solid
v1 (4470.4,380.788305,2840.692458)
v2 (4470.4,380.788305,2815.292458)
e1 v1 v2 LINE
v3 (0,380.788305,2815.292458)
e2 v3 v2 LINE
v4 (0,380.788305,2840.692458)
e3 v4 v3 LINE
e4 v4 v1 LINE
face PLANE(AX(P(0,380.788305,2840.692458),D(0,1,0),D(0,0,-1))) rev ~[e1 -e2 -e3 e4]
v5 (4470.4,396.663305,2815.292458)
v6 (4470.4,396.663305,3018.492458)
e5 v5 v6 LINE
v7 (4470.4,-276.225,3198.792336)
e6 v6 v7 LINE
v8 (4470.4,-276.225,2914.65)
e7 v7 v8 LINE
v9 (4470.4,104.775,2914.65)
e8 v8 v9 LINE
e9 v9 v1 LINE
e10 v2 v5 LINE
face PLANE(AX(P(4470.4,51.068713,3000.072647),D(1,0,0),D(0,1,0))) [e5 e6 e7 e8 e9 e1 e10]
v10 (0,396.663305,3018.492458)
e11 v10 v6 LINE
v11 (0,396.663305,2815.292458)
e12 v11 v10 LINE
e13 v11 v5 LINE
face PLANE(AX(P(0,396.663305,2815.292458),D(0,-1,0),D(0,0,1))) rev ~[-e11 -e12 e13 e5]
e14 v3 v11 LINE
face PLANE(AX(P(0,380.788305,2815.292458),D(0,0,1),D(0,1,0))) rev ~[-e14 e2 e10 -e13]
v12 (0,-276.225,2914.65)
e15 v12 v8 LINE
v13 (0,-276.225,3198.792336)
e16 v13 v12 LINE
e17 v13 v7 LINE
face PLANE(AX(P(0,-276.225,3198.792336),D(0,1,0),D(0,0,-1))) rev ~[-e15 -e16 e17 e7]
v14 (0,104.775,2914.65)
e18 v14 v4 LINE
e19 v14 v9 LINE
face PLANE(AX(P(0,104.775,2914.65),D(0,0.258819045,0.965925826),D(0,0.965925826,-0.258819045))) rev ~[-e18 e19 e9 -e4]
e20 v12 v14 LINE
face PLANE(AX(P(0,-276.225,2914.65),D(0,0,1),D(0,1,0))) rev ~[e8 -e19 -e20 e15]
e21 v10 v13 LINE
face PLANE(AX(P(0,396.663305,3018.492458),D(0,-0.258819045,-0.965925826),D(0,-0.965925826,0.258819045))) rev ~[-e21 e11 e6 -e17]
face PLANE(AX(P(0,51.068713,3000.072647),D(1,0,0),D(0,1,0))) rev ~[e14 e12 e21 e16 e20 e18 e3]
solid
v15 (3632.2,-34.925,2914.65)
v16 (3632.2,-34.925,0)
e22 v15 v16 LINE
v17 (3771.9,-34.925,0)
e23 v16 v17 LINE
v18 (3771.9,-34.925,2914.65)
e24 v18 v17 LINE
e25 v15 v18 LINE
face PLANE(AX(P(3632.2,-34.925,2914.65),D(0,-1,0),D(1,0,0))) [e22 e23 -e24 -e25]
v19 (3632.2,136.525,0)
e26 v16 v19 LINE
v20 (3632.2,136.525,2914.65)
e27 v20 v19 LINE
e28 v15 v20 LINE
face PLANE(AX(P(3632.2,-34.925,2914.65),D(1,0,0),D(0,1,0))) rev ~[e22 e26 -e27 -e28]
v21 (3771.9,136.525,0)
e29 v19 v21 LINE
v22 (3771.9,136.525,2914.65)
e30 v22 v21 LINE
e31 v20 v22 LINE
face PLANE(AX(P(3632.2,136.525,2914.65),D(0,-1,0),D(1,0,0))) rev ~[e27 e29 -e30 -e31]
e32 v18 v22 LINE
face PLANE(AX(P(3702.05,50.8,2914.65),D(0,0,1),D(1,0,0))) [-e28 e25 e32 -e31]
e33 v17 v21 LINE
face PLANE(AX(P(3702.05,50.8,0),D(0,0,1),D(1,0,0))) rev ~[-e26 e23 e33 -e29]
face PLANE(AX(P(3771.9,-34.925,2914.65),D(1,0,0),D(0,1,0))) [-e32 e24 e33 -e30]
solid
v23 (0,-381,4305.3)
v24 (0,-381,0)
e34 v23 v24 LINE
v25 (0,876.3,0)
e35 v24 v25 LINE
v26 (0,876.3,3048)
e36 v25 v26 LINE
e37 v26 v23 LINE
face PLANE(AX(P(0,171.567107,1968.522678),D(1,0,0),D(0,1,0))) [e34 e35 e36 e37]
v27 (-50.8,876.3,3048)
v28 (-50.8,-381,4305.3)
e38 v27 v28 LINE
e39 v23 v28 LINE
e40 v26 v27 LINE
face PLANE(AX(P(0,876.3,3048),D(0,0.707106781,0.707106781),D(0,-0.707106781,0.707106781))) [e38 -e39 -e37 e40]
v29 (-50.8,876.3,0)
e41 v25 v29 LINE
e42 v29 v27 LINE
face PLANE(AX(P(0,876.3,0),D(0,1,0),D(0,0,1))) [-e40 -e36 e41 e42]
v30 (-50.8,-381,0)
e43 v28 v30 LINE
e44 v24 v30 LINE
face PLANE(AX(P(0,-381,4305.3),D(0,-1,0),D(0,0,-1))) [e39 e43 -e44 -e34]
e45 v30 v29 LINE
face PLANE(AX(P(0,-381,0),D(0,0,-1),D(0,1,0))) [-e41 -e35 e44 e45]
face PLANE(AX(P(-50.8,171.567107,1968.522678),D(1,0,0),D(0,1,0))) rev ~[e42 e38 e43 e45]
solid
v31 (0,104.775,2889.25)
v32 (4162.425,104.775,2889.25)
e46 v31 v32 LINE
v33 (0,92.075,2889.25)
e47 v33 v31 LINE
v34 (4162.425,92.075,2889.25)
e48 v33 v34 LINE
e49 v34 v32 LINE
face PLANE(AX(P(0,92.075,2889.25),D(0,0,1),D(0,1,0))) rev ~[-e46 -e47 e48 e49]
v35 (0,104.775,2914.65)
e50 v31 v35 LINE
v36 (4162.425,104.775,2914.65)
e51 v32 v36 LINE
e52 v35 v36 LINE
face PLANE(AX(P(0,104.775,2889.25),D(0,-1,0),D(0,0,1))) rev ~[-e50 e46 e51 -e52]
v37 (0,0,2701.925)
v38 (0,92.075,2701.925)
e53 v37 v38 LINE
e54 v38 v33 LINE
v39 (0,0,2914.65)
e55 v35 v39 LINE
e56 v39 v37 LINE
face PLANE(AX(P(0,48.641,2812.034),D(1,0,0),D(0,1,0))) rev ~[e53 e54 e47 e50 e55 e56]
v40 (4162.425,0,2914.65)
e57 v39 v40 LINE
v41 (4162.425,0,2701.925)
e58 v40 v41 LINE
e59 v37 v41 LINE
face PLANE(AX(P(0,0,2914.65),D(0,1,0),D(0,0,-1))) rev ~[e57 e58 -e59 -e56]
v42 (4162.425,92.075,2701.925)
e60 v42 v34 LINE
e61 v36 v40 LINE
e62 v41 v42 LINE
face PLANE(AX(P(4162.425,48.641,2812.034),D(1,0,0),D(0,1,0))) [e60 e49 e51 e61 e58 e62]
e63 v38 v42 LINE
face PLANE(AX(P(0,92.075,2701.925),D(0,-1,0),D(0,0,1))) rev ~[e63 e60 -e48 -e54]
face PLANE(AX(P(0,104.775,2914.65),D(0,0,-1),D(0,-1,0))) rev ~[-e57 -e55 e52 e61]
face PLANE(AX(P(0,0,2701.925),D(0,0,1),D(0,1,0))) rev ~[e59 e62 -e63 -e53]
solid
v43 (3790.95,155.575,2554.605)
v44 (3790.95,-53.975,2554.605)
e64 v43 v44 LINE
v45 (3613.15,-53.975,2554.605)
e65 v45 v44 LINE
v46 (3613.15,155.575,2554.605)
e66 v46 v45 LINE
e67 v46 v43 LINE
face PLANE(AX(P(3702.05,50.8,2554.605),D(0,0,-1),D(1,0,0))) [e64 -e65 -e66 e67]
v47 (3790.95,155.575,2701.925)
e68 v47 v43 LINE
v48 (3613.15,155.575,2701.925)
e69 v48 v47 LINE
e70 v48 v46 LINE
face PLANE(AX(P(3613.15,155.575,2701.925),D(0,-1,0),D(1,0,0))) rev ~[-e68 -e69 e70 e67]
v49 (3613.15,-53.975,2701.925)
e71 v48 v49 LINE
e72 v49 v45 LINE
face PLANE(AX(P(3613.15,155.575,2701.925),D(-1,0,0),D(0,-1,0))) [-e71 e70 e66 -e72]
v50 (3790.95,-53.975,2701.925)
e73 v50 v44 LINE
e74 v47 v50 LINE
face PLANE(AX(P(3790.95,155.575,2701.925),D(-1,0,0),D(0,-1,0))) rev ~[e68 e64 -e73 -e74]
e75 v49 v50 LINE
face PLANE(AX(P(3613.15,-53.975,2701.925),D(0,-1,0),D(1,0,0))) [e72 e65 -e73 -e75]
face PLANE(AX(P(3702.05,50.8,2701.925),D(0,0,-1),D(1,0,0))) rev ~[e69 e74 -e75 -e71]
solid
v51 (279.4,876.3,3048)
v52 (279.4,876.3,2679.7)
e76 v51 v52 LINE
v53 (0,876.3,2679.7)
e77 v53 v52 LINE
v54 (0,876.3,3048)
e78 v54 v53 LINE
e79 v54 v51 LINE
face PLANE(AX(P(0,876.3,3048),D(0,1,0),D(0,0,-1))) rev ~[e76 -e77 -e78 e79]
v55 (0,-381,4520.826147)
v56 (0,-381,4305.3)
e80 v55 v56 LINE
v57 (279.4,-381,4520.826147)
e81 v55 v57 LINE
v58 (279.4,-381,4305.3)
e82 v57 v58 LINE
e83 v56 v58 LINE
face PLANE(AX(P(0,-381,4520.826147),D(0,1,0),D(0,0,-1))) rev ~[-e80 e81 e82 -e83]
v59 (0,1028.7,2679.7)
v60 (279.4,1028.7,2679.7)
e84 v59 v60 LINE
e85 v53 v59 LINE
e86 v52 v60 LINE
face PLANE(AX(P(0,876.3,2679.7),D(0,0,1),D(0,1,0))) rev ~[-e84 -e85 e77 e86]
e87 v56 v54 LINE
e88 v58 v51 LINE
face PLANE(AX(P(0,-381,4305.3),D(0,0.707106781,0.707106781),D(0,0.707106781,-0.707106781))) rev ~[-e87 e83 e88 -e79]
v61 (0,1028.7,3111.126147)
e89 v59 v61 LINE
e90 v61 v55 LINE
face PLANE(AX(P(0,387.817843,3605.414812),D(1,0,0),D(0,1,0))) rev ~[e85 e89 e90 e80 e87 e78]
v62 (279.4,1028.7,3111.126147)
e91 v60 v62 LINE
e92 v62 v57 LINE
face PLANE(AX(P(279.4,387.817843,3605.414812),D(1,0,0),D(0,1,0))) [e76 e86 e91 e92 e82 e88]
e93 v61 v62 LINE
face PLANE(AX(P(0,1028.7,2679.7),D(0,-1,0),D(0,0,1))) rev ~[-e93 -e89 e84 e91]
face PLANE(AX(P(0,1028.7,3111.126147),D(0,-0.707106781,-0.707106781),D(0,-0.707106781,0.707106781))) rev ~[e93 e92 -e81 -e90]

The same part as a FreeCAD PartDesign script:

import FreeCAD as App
import Part
import Sketcher
Q = App.Units.Quantity

doc = App.newDocument("Part")
body = doc.addObject("PartDesign::Body", "Body")

sketch1 = body.newObject("Sketcher::SketchObject", "Sketch")
sketch1.AttachmentSupport = (doc.getObject("YZ_Plane"), [""])
sketch1.MapMode = "FlatFace"
sketch1.addGeometry(Part.LineSegment(App.Vector(0, 2915, 0), App.Vector(0, 2702, 0)), False)
sketch1.addGeometry(Part.LineSegment(App.Vector(0, 2702, 0), App.Vector(92, 2702, 0)), False)
sketch1.addGeometry(Part.LineSegment(App.Vector(92, 2702, 0), App.Vector(92, 2889, 0)), False)
sketch1.addGeometry(Part.LineSegment(App.Vector(92, 2889, 0), App.Vector(105, 2889, 0)), False)
sketch1.addGeometry(Part.LineSegment(App.Vector(105, 2889, 0), App.Vector(105, 2915, 0)), False)
sketch1.addGeometry(Part.LineSegment(App.Vector(105, 2915, 0), App.Vector(0, 2915, 0)), False)
sketch1.addConstraint(Sketcher.Constraint("Coincident", 0, 2, 1, 1))
sketch1.addConstraint(Sketcher.Constraint("Coincident", 1, 2, 2, 1))
sketch1.addConstraint(Sketcher.Constraint("Coincident", 2, 2, 3, 1))
sketch1.addConstraint(Sketcher.Constraint("Coincident", 3, 2, 4, 1))
sketch1.addConstraint(Sketcher.Constraint("Coincident", 4, 2, 5, 1))
sketch1.addConstraint(Sketcher.Constraint("Coincident", 5, 2, 0, 1))
sketch1.addConstraint(Sketcher.Constraint("Vertical", 0))
sketch1.addConstraint(Sketcher.Constraint("Horizontal", 1))
sketch1.addConstraint(Sketcher.Constraint("Vertical", 2))
sketch1.addConstraint(Sketcher.Constraint("Horizontal", 3))
sketch1.addConstraint(Sketcher.Constraint("Vertical", 4))
sketch1.addConstraint(Sketcher.Constraint("Horizontal", 5))
sketch1.addConstraint(Sketcher.Constraint("PointOnObject", 0, 2, -2))
sketch1.addConstraint(Sketcher.Constraint("DistanceY", 4, 1, 4, 2, Q("1 in")))
sketch1.addConstraint(Sketcher.Constraint("DistanceX", 3, 1, 3, 2, Q("0.5 in")))
sketch1.addConstraint(Sketcher.Constraint("DistanceX", 1, 1, 1, 2, Q("3.625 in")))
sketch1.addConstraint(Sketcher.Constraint("DistanceY", 0, 2, 0, 1, Q("8.375 in")))
sketch1.addConstraint(Sketcher.Constraint("DistanceY", -1, 1, 2, 2, Q("113.75 in")))
pad1 = body.newObject("PartDesign::Pad", "Pad")
pad1.Profile = sketch1
pad1.Length = Q("163.875 in")
body2 = doc.addObject("PartDesign::Body", "Body001")

sketch2 = body2.newObject("Sketcher::SketchObject", "Sketch001")
sketch2.AttachmentSupport = (doc.getObject("XY_Plane001"), [""])
sketch2.MapMode = "FlatFace"
sketch2.AttachmentOffset = App.Placement(App.Vector(0, 0, 114.75 * 25.4), App.Rotation())
sketch2.addGeometry(Part.LineSegment(App.Vector(3632, 137, 0), App.Vector(3632, -35, 0)), False)
sketch2.addGeometry(Part.LineSegment(App.Vector(3632, -35, 0), App.Vector(3772, -35, 0)), False)
sketch2.addGeometry(Part.LineSegment(App.Vector(3772, -35, 0), App.Vector(3772, 137, 0)), False)
sketch2.addGeometry(Part.LineSegment(App.Vector(3772, 137, 0), App.Vector(3632, 137, 0)), False)
sketch2.addConstraint(Sketcher.Constraint("Coincident", 0, 2, 1, 1))
sketch2.addConstraint(Sketcher.Constraint("Coincident", 1, 2, 2, 1))
sketch2.addConstraint(Sketcher.Constraint("Coincident", 2, 2, 3, 1))
sketch2.addConstraint(Sketcher.Constraint("Coincident", 3, 2, 0, 1))
sketch2.addConstraint(Sketcher.Constraint("Vertical", 0))
sketch2.addConstraint(Sketcher.Constraint("Horizontal", 1))
sketch2.addConstraint(Sketcher.Constraint("Vertical", 2))
sketch2.addConstraint(Sketcher.Constraint("Horizontal", 3))
sketch2.addConstraint(Sketcher.Constraint("DistanceX", 1, 1, 1, 2, Q("5.5 in")))
sketch2.addConstraint(Sketcher.Constraint("DistanceX", -1, 1, 0, 2, Q("143 in")))
sketch2.addConstraint(Sketcher.Constraint("DistanceY", 0, 2, 0, 1, Q("6.75 in")))
sketch2.addConstraint(Sketcher.Constraint("DistanceY", 0, 2, -1, 1, Q("1.375 in")))
pad2 = body2.newObject("PartDesign::Pad", "Pad001")
pad2.Profile = sketch2
pad2.Length = Q("114.75 in")
pad2.Reversed = True
body3 = doc.addObject("PartDesign::Body", "Body002")

sketch3 = body3.newObject("Sketcher::SketchObject", "Sketch002")
sketch3.AttachmentSupport = (doc.getObject("YZ_Plane002"), [""])
sketch3.MapMode = "FlatFace"
sketch3.addGeometry(Part.LineSegment(App.Vector(-276, 2915, 0), App.Vector(105, 2915, 0)), False)
sketch3.addGeometry(Part.LineSegment(App.Vector(105, 2915, 0), App.Vector(381, 2841, 0)), False)
sketch3.addGeometry(Part.LineSegment(App.Vector(381, 2841, 0), App.Vector(381, 2815, 0)), False)
sketch3.addGeometry(Part.LineSegment(App.Vector(381, 2815, 0), App.Vector(397, 2815, 0)), False)
sketch3.addGeometry(Part.LineSegment(App.Vector(397, 2815, 0), App.Vector(397, 3018, 0)), False)
sketch3.addGeometry(Part.LineSegment(App.Vector(397, 3018, 0), App.Vector(-276, 3199, 0)), False)
sketch3.addGeometry(Part.LineSegment(App.Vector(-276, 3199, 0), App.Vector(-276, 2915, 0)), False)
sketch3.addConstraint(Sketcher.Constraint("Coincident", 0, 2, 1, 1))
sketch3.addConstraint(Sketcher.Constraint("Coincident", 1, 2, 2, 1))
sketch3.addConstraint(Sketcher.Constraint("Coincident", 2, 2, 3, 1))
sketch3.addConstraint(Sketcher.Constraint("Coincident", 3, 2, 4, 1))
sketch3.addConstraint(Sketcher.Constraint("Coincident", 4, 2, 5, 1))
sketch3.addConstraint(Sketcher.Constraint("Coincident", 5, 2, 6, 1))
sketch3.addConstraint(Sketcher.Constraint("Coincident", 6, 2, 0, 1))
sketch3.addConstraint(Sketcher.Constraint("Horizontal", 0))
sketch3.addConstraint(Sketcher.Constraint("Vertical", 2))
sketch3.addConstraint(Sketcher.Constraint("Horizontal", 3))
sketch3.addConstraint(Sketcher.Constraint("Vertical", 4))
sketch3.addConstraint(Sketcher.Constraint("Vertical", 6))
sketch3.addConstraint(Sketcher.Constraint("Parallel", 1, 5))
sketch3.addConstraint(Sketcher.Constraint("DistanceX", 0, 1, 0, 2, Q("15 in")))
sketch3.addConstraint(Sketcher.Constraint("DistanceY", 2, 2, 2, 1, Q("1 in")))
sketch3.addConstraint(Sketcher.Constraint("DistanceY", 4, 1, 4, 2, Q("8 in")))
sketch3.addConstraint(Sketcher.Constraint("Angle", 1, Q("-15 deg")))
sketch3.addConstraint(Sketcher.Constraint("Distance", 1, Q("11.25 in")))
sketch3.addConstraint(Sketcher.Constraint("DistanceX", 3, 1, 3, 2, Q("0.625 in")))
sketch3.addConstraint(Sketcher.Constraint("DistanceY", -1, 1, 0, 2, Q("114.75 in")))
sketch3.addConstraint(Sketcher.Constraint("DistanceX", -1, 1, 0, 2, Q("4.125 in")))
pad3 = body3.newObject("PartDesign::Pad", "Pad002")
pad3.Profile = sketch3
pad3.Length = Q("176 in")
body4 = doc.addObject("PartDesign::Body", "Body003")

sketch4 = body4.newObject("Sketcher::SketchObject", "Sketch003")
sketch4.AttachmentSupport = (doc.getObject("XY_Plane003"), [""])
sketch4.MapMode = "FlatFace"
sketch4.AttachmentOffset = App.Placement(App.Vector(0, 0, 106.375 * 25.4), App.Rotation())
sketch4.addGeometry(Part.LineSegment(App.Vector(3613, -54, 0), App.Vector(3613, 156, 0)), False)
sketch4.addGeometry(Part.LineSegment(App.Vector(3613, 156, 0), App.Vector(3791, 156, 0)), False)
sketch4.addGeometry(Part.LineSegment(App.Vector(3791, 156, 0), App.Vector(3791, -54, 0)), False)
sketch4.addGeometry(Part.LineSegment(App.Vector(3791, -54, 0), App.Vector(3613, -54, 0)), False)
sketch4.addConstraint(Sketcher.Constraint("Coincident", 0, 2, 1, 1))
sketch4.addConstraint(Sketcher.Constraint("Coincident", 1, 2, 2, 1))
sketch4.addConstraint(Sketcher.Constraint("Coincident", 2, 2, 3, 1))
sketch4.addConstraint(Sketcher.Constraint("Coincident", 3, 2, 0, 1))
sketch4.addConstraint(Sketcher.Constraint("Vertical", 0))
sketch4.addConstraint(Sketcher.Constraint("Horizontal", 1))
sketch4.addConstraint(Sketcher.Constraint("Vertical", 2))
sketch4.addConstraint(Sketcher.Constraint("Horizontal", 3))
sketch4.addConstraint(Sketcher.Constraint("DistanceX", 1, 1, 1, 2, Q("7 in")))
sketch4.addConstraint(Sketcher.Constraint("DistanceY", 0, 1, 0, 2, Q("8.25 in")))
sketch4.addConstraint(Sketcher.Constraint("DistanceX", -1, 1, 0, 2, Q("142.25 in")))
sketch4.addConstraint(Sketcher.Constraint("DistanceY", -1, 1, 0, 2, Q("6.125 in")))
pad4 = body4.newObject("PartDesign::Pad", "Pad003")
pad4.Profile = sketch4
pad4.Length = Q("5.8 in")
pad4.Reversed = True
body5 = doc.addObject("PartDesign::Body", "Body004")

sketch5 = body5.newObject("Sketcher::SketchObject", "Sketch004")
sketch5.AttachmentSupport = (doc.getObject("YZ_Plane004"), [""])
sketch5.MapMode = "FlatFace"
sketch5.addGeometry(Part.LineSegment(App.Vector(-381, 0, 0), App.Vector(876, 0, 0)), False)
sketch5.addGeometry(Part.LineSegment(App.Vector(876, 0, 0), App.Vector(876, 3048, 0)), False)
sketch5.addGeometry(Part.LineSegment(App.Vector(876, 3048, 0), App.Vector(-381, 4305, 0)), False)
sketch5.addGeometry(Part.LineSegment(App.Vector(-381, 4305, 0), App.Vector(-381, 0, 0)), False)
sketch5.addConstraint(Sketcher.Constraint("Coincident", 0, 2, 1, 1))
sketch5.addConstraint(Sketcher.Constraint("Coincident", 1, 2, 2, 1))
sketch5.addConstraint(Sketcher.Constraint("Coincident", 2, 2, 3, 1))
sketch5.addConstraint(Sketcher.Constraint("Coincident", 3, 2, 0, 1))
sketch5.addConstraint(Sketcher.Constraint("Horizontal", 0))
sketch5.addConstraint(Sketcher.Constraint("Vertical", 1))
sketch5.addConstraint(Sketcher.Constraint("Vertical", 3))
sketch5.addConstraint(Sketcher.Constraint("PointOnObject", 0, 2, -1))
sketch5.addConstraint(Sketcher.Constraint("DistanceY", 1, 1, 1, 2, Q("120 in")))
sketch5.addConstraint(Sketcher.Constraint("DistanceX", 0, 1, 0, 2, Q("49.5 in")))
sketch5.addConstraint(Sketcher.Constraint("DistanceY", 3, 2, 3, 1, Q("169.5 in")))
sketch5.addConstraint(Sketcher.Constraint("DistanceX", 2, 2, -1, 1, Q("15 in")))
pad5 = body5.newObject("PartDesign::Pad", "Pad004")
pad5.Profile = sketch5
pad5.Length = Q("2 in")
pad5.Reversed = True
body6 = doc.addObject("PartDesign::Body", "Body005")

sketch6 = body6.newObject("Sketcher::SketchObject", "Sketch005")
sketch6.AttachmentSupport = (doc.getObject("YZ_Plane005"), [""])
sketch6.MapMode = "FlatFace"
sketch6.addGeometry(Part.LineSegment(App.Vector(876, 3048, 0), App.Vector(876, 2680, 0)), False)
sketch6.addGeometry(Part.LineSegment(App.Vector(876, 2680, 0), App.Vector(1029, 2680, 0)), False)
sketch6.addGeometry(Part.LineSegment(App.Vector(1029, 2680, 0), App.Vector(1029, 3111, 0)), False)
sketch6.addGeometry(Part.LineSegment(App.Vector(1029, 3111, 0), App.Vector(-381, 4521, 0)), False)
sketch6.addGeometry(Part.LineSegment(App.Vector(-381, 4521, 0), App.Vector(-381, 4305, 0)), False)
sketch6.addGeometry(Part.LineSegment(App.Vector(-381, 4305, 0), App.Vector(876, 3048, 0)), False)
sketch6.addConstraint(Sketcher.Constraint("Coincident", 0, 2, 1, 1))
sketch6.addConstraint(Sketcher.Constraint("Coincident", 1, 2, 2, 1))
sketch6.addConstraint(Sketcher.Constraint("Coincident", 2, 2, 3, 1))
sketch6.addConstraint(Sketcher.Constraint("Coincident", 3, 2, 4, 1))
sketch6.addConstraint(Sketcher.Constraint("Coincident", 4, 2, 5, 1))
sketch6.addConstraint(Sketcher.Constraint("Coincident", 5, 2, 0, 1))
sketch6.addConstraint(Sketcher.Constraint("Vertical", 0))
sketch6.addConstraint(Sketcher.Constraint("Horizontal", 1))
sketch6.addConstraint(Sketcher.Constraint("Vertical", 2))
sketch6.addConstraint(Sketcher.Constraint("Vertical", 4))
sketch6.addConstraint(Sketcher.Constraint("Parallel", 3, 5))
sketch6.addConstraint(Sketcher.Constraint("DistanceX", 1, 1, 1, 2, Q("6 in")))
sketch6.addConstraint(Sketcher.Constraint("DistanceY", 0, 2, 0, 1, Q("14.5 in")))
sketch6.addConstraint(Sketcher.Constraint("DistanceX", 3, 2, -1, 1, Q("15 in")))
sketch6.addConstraint(Sketcher.Constraint("DistanceY", -1, 1, 5, 2, Q("120 in")))
sketch6.addConstraint(Sketcher.Constraint("Angle", 3, Q("135 deg")))
sketch6.addConstraint(Sketcher.Constraint("DistanceY", 0, 2, 4, 2, Q("64 in")))
sketch6.addConstraint(Sketcher.Constraint("DistanceY", 2, 1, 2, 2, Q("431.426147 mm")))
pad6 = body6.newObject("PartDesign::Pad", "Pad005")
pad6.Profile = sketch6
pad6.Length = Q("11 in")

doc.recompute()
